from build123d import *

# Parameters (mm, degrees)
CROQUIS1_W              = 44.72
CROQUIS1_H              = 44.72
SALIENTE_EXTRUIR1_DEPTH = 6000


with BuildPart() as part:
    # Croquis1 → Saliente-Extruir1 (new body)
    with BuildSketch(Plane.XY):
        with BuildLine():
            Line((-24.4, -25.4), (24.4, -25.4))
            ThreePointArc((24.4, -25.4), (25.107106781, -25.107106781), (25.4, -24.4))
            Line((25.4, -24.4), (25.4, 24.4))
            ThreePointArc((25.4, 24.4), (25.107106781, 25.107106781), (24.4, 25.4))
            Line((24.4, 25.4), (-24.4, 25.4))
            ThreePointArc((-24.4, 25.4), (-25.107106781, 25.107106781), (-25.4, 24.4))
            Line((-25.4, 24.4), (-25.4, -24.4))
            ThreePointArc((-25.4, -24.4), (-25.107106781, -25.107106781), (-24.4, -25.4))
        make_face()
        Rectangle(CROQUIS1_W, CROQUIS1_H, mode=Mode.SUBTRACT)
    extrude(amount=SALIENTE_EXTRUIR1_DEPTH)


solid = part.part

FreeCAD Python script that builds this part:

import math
import FreeCAD as App
import Part
import Sketcher
from FreeCAD import Vector
Q = App.Units.Quantity


def add_polygon(sketch, points):
    """Adds a closed chain of lines whose ends are joined by coincident constraints."""
    first, n = sketch.GeometryCount, len(points)
    for a, b in zip(points, points[1:] + points[:1]):
        sketch.addGeometry(Part.LineSegment(App.Vector(*a, 0), App.Vector(*b, 0)), False)
    for i in range(n):
        sketch.addConstraint(Sketcher.Constraint("Coincident", first + i, 2, first + (i + 1) % n, 1))

doc = App.newDocument("Part")
body = doc.addObject("PartDesign::Body", "Body")

# Sketch on XY plane
sketch1 = body.newObject("Sketcher::SketchObject", "Sketch")
sketch1.AttachmentSupport = (doc.getObject("XY_Plane"), [""])
sketch1.MapMode = "FlatFace"
sketch1.addGeometry(Part.LineSegment(Vector(-24.4, -25.4, 0), Vector(24.4, -25.4, 0)), False)  # 0
sketch1.addGeometry(Part.ArcOfCircle(Part.Circle(Vector(24.4, -24.4, 0), Vector(0, 0, 1), 1), math.radians(-90), math.radians(0)), False)  # 1
sketch1.addGeometry(Part.LineSegment(Vector(25.4, -24.4, 0), Vector(25.4, 24.4, 0)), False)  # 2
sketch1.addGeometry(Part.ArcOfCircle(Part.Circle(Vector(24.4, 24.4, 0), Vector(0, 0, 1), 1), math.radians(0), math.radians(90)), False)  # 3
sketch1.addGeometry(Part.LineSegment(Vector(24.4, 25.4, 0), Vector(-24.4, 25.4, 0)), False)  # 4
sketch1.addGeometry(Part.ArcOfCircle(Part.Circle(Vector(-24.4, 24.4, 0), Vector(0, 0, 1), 1), math.radians(90), math.radians(180)), False)  # 5
sketch1.addGeometry(Part.LineSegment(Vector(-25.4, 24.4, 0), Vector(-25.4, -24.4, 0)), False)  # 6
sketch1.addGeometry(Part.ArcOfCircle(Part.Circle(Vector(-24.4, -24.4, 0), Vector(0, 0, 1), 1), math.radians(-180), math.radians(-90)), False)  # 7
add_polygon(sketch1, [(22.4, -22.4), (-22.4, -22.4), (-22.4, 22.4), (22.4, 22.4)])  # lines 8-11
sketch1.addConstraint(Sketcher.Constraint("Tangent", 0, 2, 1, 1))
sketch1.addConstraint(Sketcher.Constraint("Tangent", 1, 2, 2, 1))
sketch1.addConstraint(Sketcher.Constraint("Tangent", 2, 2, 3, 1))
sketch1.addConstraint(Sketcher.Constraint("Tangent", 3, 2, 4, 1))
sketch1.addConstraint(Sketcher.Constraint("Tangent", 4, 2, 5, 1))
sketch1.addConstraint(Sketcher.Constraint("Tangent", 5, 2, 6, 1))
sketch1.addConstraint(Sketcher.Constraint("Tangent", 6, 2, 7, 1))
sketch1.addConstraint(Sketcher.Constraint("Tangent", 7, 2, 0, 1))
sketch1.addConstraint(Sketcher.Constraint("Horizontal", 0))
sketch1.addConstraint(Sketcher.Constraint("Vertical", 2))
sketch1.addConstraint(Sketcher.Constraint("Horizontal", 4))
sketch1.addConstraint(Sketcher.Constraint("Vertical", 6))
sketch1.addConstraint(Sketcher.Constraint("Horizontal", 8))
sketch1.addConstraint(Sketcher.Constraint("Vertical", 9))
sketch1.addConstraint(Sketcher.Constraint("Horizontal", 10))
sketch1.addConstraint(Sketcher.Constraint("Vertical", 11))
sketch1.addConstraint(Sketcher.Constraint("Equal", 1, 3))
sketch1.addConstraint(Sketcher.Constraint("Equal", 3, 5))
sketch1.addConstraint(Sketcher.Constraint("Equal", 5, 7))
sketch1.addConstraint(Sketcher.Constraint("Symmetric", 1, 3, 5, 3, -1, 1))
sketch1.addConstraint(Sketcher.Constraint("Symmetric", 8, 2, 10, 2, -1, 1))
sketch1.addConstraint(Sketcher.Constraint("Equal", 4, 2))
sketch1.addConstraint(Sketcher.Constraint("Equal", 10, 9))
sketch1.addConstraint(Sketcher.Constraint("Radius", 1, Q("1 mm")))
sketch1.addConstraint(Sketcher.Constraint("DistanceX", 0, 1, 0, 2, Q("48.8 mm")))
sketch1.addConstraint(Sketcher.Constraint("DistanceX", 8, 2, 8, 1, Q("44.72 mm")))
pad1 = body.newObject("PartDesign::Pad", "Pad")
pad1.Profile = sketch1
pad1.Length = 6000

doc.recompute()
